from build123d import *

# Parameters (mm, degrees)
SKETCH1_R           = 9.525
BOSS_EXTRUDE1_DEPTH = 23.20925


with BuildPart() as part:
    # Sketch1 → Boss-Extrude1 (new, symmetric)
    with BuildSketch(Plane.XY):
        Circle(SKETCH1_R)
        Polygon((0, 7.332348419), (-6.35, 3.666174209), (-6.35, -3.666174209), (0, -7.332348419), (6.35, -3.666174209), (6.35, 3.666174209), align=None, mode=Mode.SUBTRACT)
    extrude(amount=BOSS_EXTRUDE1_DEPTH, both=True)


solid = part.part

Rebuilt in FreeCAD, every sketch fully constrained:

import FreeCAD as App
import Part
import Sketcher

V = App.Vector
Q = App.Units.Quantity


def add_polygon(sketch, points):
    """Adds a closed chain of lines whose ends are joined by coincident constraints."""
    first, n = sketch.GeometryCount, len(points)
    for a, b in zip(points, points[1:] + points[:1]):
        sketch.addGeometry(Part.LineSegment(App.Vector(*a, 0), App.Vector(*b, 0)), False)
    for i in range(n):
        sketch.addConstraint(Sketcher.Constraint("Coincident", first + i, 2, first + (i + 1) % n, 1))

doc = App.newDocument("Part")
body = doc.addObject("PartDesign::Body", "Body")

# Sketch on XY plane
sketch1 = body.newObject("Sketcher::SketchObject", "Sketch")
sketch1.AttachmentSupport = (doc.getObject("XY_Plane"), [""])
sketch1.MapMode = "FlatFace"
sketch1.addGeometry(Part.Circle(V(0, 0, 0), V(0, 0, 1), 9.525), False)  # 0
add_polygon(sketch1, [(-6.35, 3.666174), (0, 7.332348), (6.35, 3.666174), (6.35, -3.666174), (0, -7.332348), (-6.35, -3.666174)])  # lines 1-6
sketch1.addConstraint([
    Sketcher.Constraint("Vertical", 3),
    Sketcher.Constraint("Vertical", 6),
    Sketcher.Constraint("Coincident", 0, 3, -1, 1),
    Sketcher.Constraint("Symmetric", 1, 2, 4, 2, -1, 1),
    Sketcher.Constraint("Symmetric", 2, 2, 5, 2, -1, 1),
    Sketcher.Constraint("PointOnObject", 1, 2, -2),
    Sketcher.Constraint("Parallel", 1, 4),
    Sketcher.Constraint("Horizontal", 3, 2, 5, 2),
    Sketcher.Constraint("Diameter", 0, Q("0.75 in")),
    Sketcher.Constraint("Angle", 1, Q("30 deg")),
    Sketcher.Constraint("DistanceX", 5, 2, 3, 2, Q("0.5 in")),
    Sketcher.Constraint("DistanceY", 3, 2, 3, 1, 7.332348),
])
pad1 = body.newObject("PartDesign::Pad", "Pad")
pad1.Profile = sketch1
pad1.Length = Q("1.8275 in")
pad1.Midplane = True

doc.recompute()
